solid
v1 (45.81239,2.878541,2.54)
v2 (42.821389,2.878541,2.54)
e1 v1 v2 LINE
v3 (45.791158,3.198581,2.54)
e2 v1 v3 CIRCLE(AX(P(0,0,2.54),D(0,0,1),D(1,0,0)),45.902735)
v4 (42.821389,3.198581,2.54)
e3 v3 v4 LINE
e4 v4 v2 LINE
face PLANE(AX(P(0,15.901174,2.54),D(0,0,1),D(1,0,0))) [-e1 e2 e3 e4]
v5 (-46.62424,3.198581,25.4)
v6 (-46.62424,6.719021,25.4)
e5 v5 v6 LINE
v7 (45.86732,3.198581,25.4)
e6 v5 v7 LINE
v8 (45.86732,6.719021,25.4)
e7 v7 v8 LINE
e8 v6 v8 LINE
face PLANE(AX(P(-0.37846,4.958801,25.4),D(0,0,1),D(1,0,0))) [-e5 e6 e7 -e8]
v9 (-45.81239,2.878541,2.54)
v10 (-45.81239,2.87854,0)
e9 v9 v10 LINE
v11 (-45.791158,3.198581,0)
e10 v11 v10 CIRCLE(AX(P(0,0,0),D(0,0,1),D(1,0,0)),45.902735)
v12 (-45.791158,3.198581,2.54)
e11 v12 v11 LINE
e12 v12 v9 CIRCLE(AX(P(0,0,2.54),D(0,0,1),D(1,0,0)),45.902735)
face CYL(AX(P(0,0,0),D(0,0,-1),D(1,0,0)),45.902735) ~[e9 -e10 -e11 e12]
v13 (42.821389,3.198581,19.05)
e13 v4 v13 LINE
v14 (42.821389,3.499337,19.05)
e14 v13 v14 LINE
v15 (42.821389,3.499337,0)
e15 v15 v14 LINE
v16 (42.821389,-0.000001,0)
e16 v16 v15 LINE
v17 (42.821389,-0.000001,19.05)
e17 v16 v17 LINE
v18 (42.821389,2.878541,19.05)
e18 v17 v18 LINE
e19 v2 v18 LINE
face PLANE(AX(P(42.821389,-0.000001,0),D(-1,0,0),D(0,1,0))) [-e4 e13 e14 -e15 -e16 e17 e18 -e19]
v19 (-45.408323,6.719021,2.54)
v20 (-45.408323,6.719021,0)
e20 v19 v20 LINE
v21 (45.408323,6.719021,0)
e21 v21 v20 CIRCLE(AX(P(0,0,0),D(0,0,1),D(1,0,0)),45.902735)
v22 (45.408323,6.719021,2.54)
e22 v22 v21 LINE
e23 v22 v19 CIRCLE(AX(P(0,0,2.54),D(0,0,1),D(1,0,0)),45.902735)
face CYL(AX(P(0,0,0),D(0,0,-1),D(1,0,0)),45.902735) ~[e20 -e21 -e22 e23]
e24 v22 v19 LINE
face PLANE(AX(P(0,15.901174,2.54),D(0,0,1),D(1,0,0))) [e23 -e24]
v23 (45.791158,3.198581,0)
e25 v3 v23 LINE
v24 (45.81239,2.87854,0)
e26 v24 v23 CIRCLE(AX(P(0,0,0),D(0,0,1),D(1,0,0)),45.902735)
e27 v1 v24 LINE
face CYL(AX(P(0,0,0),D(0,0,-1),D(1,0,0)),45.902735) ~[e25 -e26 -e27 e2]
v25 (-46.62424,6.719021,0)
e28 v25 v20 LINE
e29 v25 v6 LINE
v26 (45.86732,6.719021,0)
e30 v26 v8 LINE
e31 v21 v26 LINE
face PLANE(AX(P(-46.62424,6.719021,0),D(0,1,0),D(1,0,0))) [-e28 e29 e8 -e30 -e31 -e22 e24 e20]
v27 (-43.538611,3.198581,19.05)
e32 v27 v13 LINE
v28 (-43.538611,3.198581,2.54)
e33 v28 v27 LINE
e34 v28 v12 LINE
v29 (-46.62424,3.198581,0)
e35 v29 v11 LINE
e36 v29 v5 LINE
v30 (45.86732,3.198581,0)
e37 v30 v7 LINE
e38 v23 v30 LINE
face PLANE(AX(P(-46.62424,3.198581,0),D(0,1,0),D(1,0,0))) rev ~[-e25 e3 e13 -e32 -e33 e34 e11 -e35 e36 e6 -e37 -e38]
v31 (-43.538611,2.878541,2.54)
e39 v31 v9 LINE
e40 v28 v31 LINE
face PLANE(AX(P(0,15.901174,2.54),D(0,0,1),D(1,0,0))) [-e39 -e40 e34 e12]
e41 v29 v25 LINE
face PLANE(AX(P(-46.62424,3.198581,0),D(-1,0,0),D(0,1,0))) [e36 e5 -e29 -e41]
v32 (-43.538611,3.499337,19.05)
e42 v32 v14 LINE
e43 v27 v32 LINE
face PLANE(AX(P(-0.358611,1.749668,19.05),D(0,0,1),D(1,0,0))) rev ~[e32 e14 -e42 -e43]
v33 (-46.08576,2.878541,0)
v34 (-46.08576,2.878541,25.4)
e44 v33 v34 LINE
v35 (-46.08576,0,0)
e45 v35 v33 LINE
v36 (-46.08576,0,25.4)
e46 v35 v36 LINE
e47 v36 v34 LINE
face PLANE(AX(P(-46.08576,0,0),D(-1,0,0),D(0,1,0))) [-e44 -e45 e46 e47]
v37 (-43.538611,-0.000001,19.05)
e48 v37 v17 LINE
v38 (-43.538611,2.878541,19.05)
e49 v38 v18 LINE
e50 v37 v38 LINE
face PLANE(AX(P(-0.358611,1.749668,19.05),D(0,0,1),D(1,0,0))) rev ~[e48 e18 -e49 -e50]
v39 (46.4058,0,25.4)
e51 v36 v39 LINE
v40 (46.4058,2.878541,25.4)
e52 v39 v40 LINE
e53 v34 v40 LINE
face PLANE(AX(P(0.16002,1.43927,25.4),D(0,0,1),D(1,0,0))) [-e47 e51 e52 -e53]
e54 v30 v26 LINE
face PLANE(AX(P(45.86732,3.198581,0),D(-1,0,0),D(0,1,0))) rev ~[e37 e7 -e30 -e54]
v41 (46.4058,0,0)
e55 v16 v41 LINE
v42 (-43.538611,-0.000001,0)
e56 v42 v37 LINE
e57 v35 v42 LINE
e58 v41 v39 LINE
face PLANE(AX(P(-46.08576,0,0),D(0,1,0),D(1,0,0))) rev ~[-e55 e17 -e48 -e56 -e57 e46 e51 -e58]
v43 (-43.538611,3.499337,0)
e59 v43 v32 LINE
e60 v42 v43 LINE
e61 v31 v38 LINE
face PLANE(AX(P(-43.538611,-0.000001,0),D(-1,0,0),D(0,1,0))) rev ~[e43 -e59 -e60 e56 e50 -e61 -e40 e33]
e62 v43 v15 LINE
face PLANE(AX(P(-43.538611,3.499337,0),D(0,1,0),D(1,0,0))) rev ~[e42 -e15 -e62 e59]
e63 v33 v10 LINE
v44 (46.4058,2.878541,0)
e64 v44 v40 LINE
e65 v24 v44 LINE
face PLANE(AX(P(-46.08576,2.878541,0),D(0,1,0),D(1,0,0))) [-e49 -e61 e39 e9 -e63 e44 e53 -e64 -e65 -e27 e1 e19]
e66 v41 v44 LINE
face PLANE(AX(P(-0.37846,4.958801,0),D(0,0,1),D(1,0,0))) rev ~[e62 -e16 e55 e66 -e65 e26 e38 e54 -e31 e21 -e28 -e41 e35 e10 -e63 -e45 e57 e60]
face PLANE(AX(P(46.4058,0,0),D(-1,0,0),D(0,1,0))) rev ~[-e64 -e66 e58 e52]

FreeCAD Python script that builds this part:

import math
import FreeCAD as App
import Part
import Sketcher

V = App.Vector
Q = App.Units.Quantity


def add_polygon(sketch, points):
    """Adds a closed chain of lines whose ends are joined by coincident constraints."""
    first, n = sketch.GeometryCount, len(points)
    for a, b in zip(points, points[1:] + points[:1]):
        sketch.addGeometry(Part.LineSegment(App.Vector(*a, 0), App.Vector(*b, 0)), False)
    for i in range(n):
        sketch.addConstraint(Sketcher.Constraint("Coincident", first + i, 2, first + (i + 1) % n, 1))

doc = App.newDocument("Part")
body = doc.addObject("PartDesign::Body", "Body")

# Sketch on XY plane
sketch1 = body.newObject("Sketcher::SketchObject", "Sketch")
sketch1.AttachmentSupport = (doc.getObject("XY_Plane"), [""])
sketch1.MapMode = "FlatFace"
sketch1.addGeometry(Part.LineSegment(V(-45.902735, 0, 0), V(45.902735, 0, 0)), False)
sketch1.addGeometry(Part.ArcOfCircle(Part.Circle(V(0, 0, 0), V(0, 0, 1), 45.902735), math.radians(0), math.radians(180)), False)
sketch1.addConstraint(Sketcher.Constraint("Coincident", 0, 1, 1, 2))
sketch1.addConstraint(Sketcher.Constraint("Coincident", 1, 1, 0, 2))
sketch1.addConstraint(Sketcher.Constraint("Horizontal", 0))
sketch1.addConstraint(Sketcher.Constraint("Coincident", 1, 3, -1, 1))
sketch1.addConstraint(Sketcher.Constraint("PointOnObject", 0, 1, -1))
sketch1.addConstraint(Sketcher.Constraint("Radius", 1, 45.902735))
pad1 = body.newObject("PartDesign::Pad", "Pad")
pad1.Profile = sketch1
pad1.Length = Q("0.1 in")

# Sketch on XY plane
sketch2 = body.newObject("Sketcher::SketchObject", "Sketch001")
sketch2.AttachmentSupport = (doc.getObject("XY_Plane"), [""])
sketch2.MapMode = "FlatFace"
add_polygon(sketch2, [(-46.08576, 2.878541), (-46.08576, 0), (46.4058, 0), (46.4058, 2.878541)])  # lines 0-3
sketch2.addConstraint(Sketcher.Constraint("Vertical", 0))
sketch2.addConstraint(Sketcher.Constraint("Horizontal", 1))
sketch2.addConstraint(Sketcher.Constraint("Vertical", 2))
sketch2.addConstraint(Sketcher.Constraint("Horizontal", 3))
sketch2.addConstraint(Sketcher.Constraint("PointOnObject", 0, 2, -1))
sketch2.addConstraint(Sketcher.Constraint("DistanceX", 1, 1, 1, 2, Q("3.6414 in")))
sketch2.addConstraint(Sketcher.Constraint("DistanceX", -1, 1, 1, 2, Q("1.827 in")))
sketch2.addConstraint(Sketcher.Constraint("DistanceY", 0, 2, 0, 1, 2.878541))
pad2 = body.newObject("PartDesign::Pad", "Pad001")
pad2.Profile = sketch2
pad2.Length = Q("1 in")

# Sketch on XY plane
sketch3 = body.newObject("Sketcher::SketchObject", "Sketch002")
sketch3.AttachmentSupport = (doc.getObject("XY_Plane"), [""])
sketch3.MapMode = "FlatFace"
add_polygon(sketch3, [(-46.62424, 6.719021), (-46.62424, 3.198581), (45.86732, 3.198581), (45.86732, 6.719021)])  # lines 0-3
sketch3.addConstraint(Sketcher.Constraint("Vertical", 0))
sketch3.addConstraint(Sketcher.Constraint("Horizontal", 1))
sketch3.addConstraint(Sketcher.Constraint("Vertical", 2))
sketch3.addConstraint(Sketcher.Constraint("Horizontal", 3))
sketch3.addConstraint(Sketcher.Constraint("DistanceX", 1, 1, 1, 2, Q("3.6414 in")))
sketch3.addConstraint(Sketcher.Constraint("DistanceY", 0, 2, 0, 1, Q("0.1386 in")))
sketch3.addConstraint(Sketcher.Constraint("DistanceX", 0, 2, -1, 1, Q("1.8356 in")))
sketch3.addConstraint(Sketcher.Constraint("DistanceY", -1, 1, 0, 2, 3.198581))
pad3 = body.newObject("PartDesign::Pad", "Pad002")
pad3.Profile = sketch3
pad3.Length = Q("1 in")

# Sketch on XY plane
sketch4 = body.newObject("Sketcher::SketchObject", "Sketch003")
sketch4.AttachmentSupport = (doc.getObject("XY_Plane"), [""])
sketch4.MapMode = "FlatFace"
add_polygon(sketch4, [(-43.538611, 3.499337), (-43.538611, 0), (42.821389, 0), (42.821389, 3.499337)])  # lines 0-3
sketch4.addConstraint(Sketcher.Constraint("Vertical", 0))
sketch4.addConstraint(Sketcher.Constraint("Horizontal", 1))
sketch4.addConstraint(Sketcher.Constraint("Vertical", 2))
sketch4.addConstraint(Sketcher.Constraint("Horizontal", 3))
sketch4.addConstraint(Sketcher.Constraint("PointOnObject", 0, 2, -1))
sketch4.addConstraint(Sketcher.Constraint("DistanceX", 1, 1, 1, 2, Q("3.4 in")))
sketch4.addConstraint(Sketcher.Constraint("DistanceY", 0, 2, 0, 1, 3.499337))
sketch4.addConstraint(Sketcher.Constraint("DistanceX", 0, 2, -1, 1, 43.538611))
pocket1 = body.newObject("PartDesign::Pocket", "Pocket")
pocket1.Profile = sketch4
pocket1.Length = Q("0.75 in")
pocket1.Reversed = True

doc.recompute()
